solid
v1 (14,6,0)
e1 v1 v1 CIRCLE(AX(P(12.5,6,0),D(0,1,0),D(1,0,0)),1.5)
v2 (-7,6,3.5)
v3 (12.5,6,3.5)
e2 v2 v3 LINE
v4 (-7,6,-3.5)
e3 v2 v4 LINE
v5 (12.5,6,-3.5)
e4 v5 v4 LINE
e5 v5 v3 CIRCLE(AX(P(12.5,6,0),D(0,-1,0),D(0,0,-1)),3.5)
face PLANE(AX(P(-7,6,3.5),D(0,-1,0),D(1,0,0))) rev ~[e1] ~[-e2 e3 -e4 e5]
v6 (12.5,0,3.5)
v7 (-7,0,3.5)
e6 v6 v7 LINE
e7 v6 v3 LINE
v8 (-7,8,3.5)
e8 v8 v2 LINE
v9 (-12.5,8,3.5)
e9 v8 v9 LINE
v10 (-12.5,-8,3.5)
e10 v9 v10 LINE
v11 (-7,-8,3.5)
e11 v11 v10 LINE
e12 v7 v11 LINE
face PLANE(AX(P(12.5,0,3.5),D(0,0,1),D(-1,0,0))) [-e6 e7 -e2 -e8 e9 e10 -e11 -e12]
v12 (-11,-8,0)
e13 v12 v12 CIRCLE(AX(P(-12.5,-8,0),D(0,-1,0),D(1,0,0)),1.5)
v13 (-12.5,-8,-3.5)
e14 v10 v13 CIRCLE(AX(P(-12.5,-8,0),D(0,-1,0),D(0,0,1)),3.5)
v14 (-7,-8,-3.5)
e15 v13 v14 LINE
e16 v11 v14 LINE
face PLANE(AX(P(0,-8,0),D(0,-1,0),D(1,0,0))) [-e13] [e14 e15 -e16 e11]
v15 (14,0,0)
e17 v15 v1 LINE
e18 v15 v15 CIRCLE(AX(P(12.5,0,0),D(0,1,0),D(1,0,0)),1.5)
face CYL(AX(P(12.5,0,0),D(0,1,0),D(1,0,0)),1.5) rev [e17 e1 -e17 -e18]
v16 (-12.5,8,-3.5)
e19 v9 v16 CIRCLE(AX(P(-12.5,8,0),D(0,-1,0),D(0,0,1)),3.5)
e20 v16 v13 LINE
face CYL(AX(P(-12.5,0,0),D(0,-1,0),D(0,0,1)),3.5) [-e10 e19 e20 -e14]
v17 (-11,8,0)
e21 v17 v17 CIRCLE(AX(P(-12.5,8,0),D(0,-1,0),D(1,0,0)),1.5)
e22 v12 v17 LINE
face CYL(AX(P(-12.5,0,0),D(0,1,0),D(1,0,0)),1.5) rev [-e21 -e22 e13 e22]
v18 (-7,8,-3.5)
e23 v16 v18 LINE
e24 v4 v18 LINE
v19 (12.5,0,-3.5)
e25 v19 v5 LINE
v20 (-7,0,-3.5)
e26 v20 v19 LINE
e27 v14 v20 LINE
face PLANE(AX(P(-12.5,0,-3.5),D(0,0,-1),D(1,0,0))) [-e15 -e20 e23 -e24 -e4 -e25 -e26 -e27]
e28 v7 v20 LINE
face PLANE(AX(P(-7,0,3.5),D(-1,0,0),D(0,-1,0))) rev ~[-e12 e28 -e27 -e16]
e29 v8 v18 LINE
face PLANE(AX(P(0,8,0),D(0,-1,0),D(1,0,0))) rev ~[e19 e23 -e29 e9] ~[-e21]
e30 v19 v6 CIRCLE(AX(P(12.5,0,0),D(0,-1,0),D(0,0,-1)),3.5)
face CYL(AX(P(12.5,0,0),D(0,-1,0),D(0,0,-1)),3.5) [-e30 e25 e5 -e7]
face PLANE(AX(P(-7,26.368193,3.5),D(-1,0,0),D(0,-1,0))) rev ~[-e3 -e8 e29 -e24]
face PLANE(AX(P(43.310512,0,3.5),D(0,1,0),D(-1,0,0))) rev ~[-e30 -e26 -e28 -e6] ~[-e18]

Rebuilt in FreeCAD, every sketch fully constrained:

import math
import FreeCAD as App
import Part
import Sketcher
from FreeCAD import Vector
Q = App.Units.Quantity


def add_polygon(sketch, points):
    """Adds a closed chain of lines whose ends are joined by coincident constraints."""
    first, n = sketch.GeometryCount, len(points)
    for a, b in zip(points, points[1:] + points[:1]):
        sketch.addGeometry(Part.LineSegment(App.Vector(*a, 0), App.Vector(*b, 0)), False)
    for i in range(n):
        sketch.addConstraint(Sketcher.Constraint("Coincident", first + i, 2, first + (i + 1) % n, 1))

doc = App.newDocument("Part")
params = doc.addObject("Spreadsheet::Sheet", "Params")
for row, (alias, value) in enumerate([
    ("sketch1_diameter", "3 mm"),
    ("sketch1_radius", "3.5 mm"),
    ("sketch1_width", "25 mm"),
    ("pad1_length", "16 mm"),
], start=1):
    params.set(f"A{row}", alias)
    params.set(f"B{row}", "=" + value)
    params.setAlias(f"B{row}", alias)

body = doc.addObject("PartDesign::Body", "Body")

# Sketch on XZ plane
sketch1 = body.newObject("Sketcher::SketchObject", "Sketch")
sketch1.AttachmentSupport = (doc.getObject("XZ_Plane"), [""])
sketch1.MapMode = "FlatFace"
sketch1.addGeometry([
    Part.LineSegment(Vector(12.5, 3.5, 0), Vector(-12.5, 3.5, 0)),  # 0
    Part.ArcOfCircle(Part.Circle(Vector(-12.5, 0, 0), Vector(0, 0, 1), 3.5), math.radians(90), math.radians(270)),  # 1
    Part.LineSegment(Vector(-12.5, -3.5, 0), Vector(12.5, -3.5, 0)),  # 2
    Part.ArcOfCircle(Part.Circle(Vector(12.5, 0, 0), Vector(0, 0, 1), 3.5), math.radians(-90), math.radians(90)),  # 3
    Part.Circle(Vector(-12.5, 0, 0), Vector(0, 0, 1), 1.5),  # 4
    Part.Circle(Vector(12.5, 0, 0), Vector(0, 0, 1), 1.5),  # 5
], False)
sketch1.addConstraint([
    Sketcher.Constraint("Tangent", 0, 2, 1, 1),
    Sketcher.Constraint("Tangent", 1, 2, 2, 1),
    Sketcher.Constraint("Tangent", 2, 2, 3, 1),
    Sketcher.Constraint("Tangent", 3, 2, 0, 1),
    Sketcher.Constraint("Horizontal", 0),
    Sketcher.Constraint("Horizontal", 2),
    Sketcher.Constraint("Coincident", 4, 3, 1, 3),
    Sketcher.Constraint("Coincident", 5, 3, 3, 3),
    Sketcher.Constraint("Equal", 4, 5),
    Sketcher.Constraint("Symmetric", 1, 3, 3, 3, -1, 1),
    Sketcher.Constraint("Diameter", 4, Q("3 mm")),
    Sketcher.Constraint("Radius", 1, Q("3.5 mm")),
    Sketcher.Constraint("DistanceX", 0, 2, 0, 1, Q("25 mm")),
])
sketch1.setExpression("Constraints[10]", "Params.sketch1_diameter")
sketch1.setExpression("Constraints[11]", "Params.sketch1_radius")
sketch1.setExpression("Constraints[12]", "Params.sketch1_width")
pad1 = body.newObject("PartDesign::Pad", "Pad")
pad1.Profile = sketch1
pad1.setExpression("Length", "Params.pad1_length")
pad1.Midplane = True

# Sketch on XY plane
sketch2 = body.newObject("Sketcher::SketchObject", "Sketch001")
sketch2.AttachmentSupport = (doc.getObject("XY_Plane"), [""])
sketch2.MapMode = "FlatFace"
sketch2.AttachmentOffset = App.Placement(Vector(0, 0, 3.5), App.Rotation())
add_polygon(sketch2, [(39, 6), (39, 26), (-7, 26), (-7, 6)])  # lines 0-3
add_polygon(sketch2, [(43, 0), (-7, 0), (-7, -22), (43, -22)])  # lines 4-7
sketch2.addConstraint([
    Sketcher.Constraint("Vertical", 0),
    Sketcher.Constraint("Horizontal", 1),
    Sketcher.Constraint("Vertical", 2),
    Sketcher.Constraint("Horizontal", 3),
    Sketcher.Constraint("Horizontal", 4),
    Sketcher.Constraint("Vertical", 5),
    Sketcher.Constraint("Horizontal", 6),
    Sketcher.Constraint("Vertical", 7),
    Sketcher.Constraint("PointOnObject", 4, 2, -1),
    Sketcher.Constraint("Vertical", 2, 2, 4, 2),
    Sketcher.Constraint("DistanceX", 1, 2, -1, 1, Q("7 mm")),
    Sketcher.Constraint("DistanceY", -1, 1, 2, 2, Q("6 mm")),
    Sketcher.Constraint("DistanceX", 1, 2, 1, 1, Q("45.743676 mm")),
    Sketcher.Constraint("DistanceX", 4, 2, 4, 1, Q("50.310512 mm")),
    Sketcher.Constraint("DistanceY", 0, 1, 0, 2, Q("20.368193 mm")),
    Sketcher.Constraint("DistanceY", 5, 2, 5, 1, Q("22.254754 mm")),
])
pocket1 = body.newObject("PartDesign::Pocket", "Pocket")
pocket1.Profile = sketch2
pocket1.Type = "ThroughAll"

doc.recompute()
